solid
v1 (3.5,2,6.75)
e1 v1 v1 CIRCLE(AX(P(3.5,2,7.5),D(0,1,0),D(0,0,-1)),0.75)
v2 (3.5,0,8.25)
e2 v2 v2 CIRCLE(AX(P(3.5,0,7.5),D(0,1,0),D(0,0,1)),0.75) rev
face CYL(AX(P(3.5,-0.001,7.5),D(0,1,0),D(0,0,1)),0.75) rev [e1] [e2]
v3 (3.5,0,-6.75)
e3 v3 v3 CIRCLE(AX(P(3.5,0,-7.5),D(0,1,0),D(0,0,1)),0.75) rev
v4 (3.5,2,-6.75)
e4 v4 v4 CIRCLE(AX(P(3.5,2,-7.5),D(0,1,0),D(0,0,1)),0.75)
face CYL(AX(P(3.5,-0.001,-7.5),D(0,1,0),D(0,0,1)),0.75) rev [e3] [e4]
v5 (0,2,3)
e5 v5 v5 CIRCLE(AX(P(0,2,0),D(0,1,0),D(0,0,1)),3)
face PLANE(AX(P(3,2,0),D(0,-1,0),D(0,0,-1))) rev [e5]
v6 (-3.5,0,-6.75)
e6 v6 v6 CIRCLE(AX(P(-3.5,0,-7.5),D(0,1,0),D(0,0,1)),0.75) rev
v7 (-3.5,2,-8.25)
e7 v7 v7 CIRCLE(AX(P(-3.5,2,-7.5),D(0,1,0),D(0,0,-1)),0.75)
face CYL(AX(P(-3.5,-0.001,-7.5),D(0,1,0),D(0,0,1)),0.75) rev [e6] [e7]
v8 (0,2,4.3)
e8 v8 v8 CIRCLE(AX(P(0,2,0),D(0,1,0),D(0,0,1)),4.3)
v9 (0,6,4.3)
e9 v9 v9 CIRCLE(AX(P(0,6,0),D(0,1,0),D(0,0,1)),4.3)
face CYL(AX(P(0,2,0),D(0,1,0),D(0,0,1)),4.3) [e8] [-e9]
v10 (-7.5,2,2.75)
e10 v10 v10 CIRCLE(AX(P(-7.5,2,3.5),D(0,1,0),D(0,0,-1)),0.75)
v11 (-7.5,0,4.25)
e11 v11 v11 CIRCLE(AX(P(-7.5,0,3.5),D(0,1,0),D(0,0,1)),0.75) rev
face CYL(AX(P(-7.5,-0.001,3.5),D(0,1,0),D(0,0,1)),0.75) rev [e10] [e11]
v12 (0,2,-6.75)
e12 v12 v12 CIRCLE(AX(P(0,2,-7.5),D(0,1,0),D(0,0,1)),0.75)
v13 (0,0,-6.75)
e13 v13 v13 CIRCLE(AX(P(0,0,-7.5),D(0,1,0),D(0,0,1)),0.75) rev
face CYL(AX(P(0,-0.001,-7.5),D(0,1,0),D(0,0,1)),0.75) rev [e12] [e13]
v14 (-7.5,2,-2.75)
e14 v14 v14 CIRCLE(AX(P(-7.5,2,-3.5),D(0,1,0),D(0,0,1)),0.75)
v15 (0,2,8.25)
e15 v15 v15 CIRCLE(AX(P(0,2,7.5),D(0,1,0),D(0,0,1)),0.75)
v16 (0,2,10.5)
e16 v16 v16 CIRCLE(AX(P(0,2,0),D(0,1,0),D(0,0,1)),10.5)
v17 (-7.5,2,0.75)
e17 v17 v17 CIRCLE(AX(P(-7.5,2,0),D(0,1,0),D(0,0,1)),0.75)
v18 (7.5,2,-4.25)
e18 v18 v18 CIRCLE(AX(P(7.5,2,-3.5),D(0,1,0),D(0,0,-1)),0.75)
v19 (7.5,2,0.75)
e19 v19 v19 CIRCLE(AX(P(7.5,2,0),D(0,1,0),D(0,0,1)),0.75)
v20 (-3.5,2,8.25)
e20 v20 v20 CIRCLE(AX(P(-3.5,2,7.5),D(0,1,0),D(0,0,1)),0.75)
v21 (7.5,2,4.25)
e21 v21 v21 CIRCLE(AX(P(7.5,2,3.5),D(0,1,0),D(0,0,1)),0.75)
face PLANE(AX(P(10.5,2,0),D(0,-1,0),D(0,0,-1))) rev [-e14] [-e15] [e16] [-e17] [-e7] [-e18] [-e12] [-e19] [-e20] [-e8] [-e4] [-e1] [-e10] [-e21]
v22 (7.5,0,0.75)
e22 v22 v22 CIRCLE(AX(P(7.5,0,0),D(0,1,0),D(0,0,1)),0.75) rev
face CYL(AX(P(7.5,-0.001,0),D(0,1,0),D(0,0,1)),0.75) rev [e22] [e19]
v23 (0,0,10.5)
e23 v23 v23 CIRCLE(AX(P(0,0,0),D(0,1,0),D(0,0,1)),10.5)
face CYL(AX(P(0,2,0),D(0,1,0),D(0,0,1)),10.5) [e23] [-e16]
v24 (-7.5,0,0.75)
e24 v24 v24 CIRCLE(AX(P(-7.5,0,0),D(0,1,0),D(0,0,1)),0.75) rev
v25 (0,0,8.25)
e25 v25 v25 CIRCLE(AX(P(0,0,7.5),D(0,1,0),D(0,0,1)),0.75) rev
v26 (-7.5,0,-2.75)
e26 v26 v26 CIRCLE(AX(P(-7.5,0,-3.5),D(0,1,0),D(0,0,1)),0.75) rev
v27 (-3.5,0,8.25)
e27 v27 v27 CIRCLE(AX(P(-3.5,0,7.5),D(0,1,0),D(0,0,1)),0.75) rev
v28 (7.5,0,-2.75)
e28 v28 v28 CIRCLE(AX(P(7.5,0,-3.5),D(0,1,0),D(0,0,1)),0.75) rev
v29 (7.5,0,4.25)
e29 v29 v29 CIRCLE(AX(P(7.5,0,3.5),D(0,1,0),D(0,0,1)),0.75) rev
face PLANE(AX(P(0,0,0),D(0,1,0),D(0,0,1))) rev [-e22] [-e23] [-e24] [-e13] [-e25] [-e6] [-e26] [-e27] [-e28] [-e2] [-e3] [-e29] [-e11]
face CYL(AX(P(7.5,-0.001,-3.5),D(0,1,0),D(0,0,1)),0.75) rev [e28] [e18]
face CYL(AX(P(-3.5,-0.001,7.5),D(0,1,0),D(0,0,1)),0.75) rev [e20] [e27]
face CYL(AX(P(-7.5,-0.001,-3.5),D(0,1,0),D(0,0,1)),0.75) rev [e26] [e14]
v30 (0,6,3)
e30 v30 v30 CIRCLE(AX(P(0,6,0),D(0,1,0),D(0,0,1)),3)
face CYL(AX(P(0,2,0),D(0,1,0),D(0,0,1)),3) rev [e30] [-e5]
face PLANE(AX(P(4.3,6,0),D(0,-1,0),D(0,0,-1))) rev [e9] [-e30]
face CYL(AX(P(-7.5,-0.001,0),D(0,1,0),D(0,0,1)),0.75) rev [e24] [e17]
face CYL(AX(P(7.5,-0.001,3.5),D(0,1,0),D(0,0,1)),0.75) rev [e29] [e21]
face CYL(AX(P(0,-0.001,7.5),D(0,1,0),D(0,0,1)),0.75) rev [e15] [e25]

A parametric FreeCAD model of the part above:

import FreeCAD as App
import Part
import Sketcher

V = App.Vector

doc = App.newDocument("Part")
body = doc.addObject("PartDesign::Body", "Body")

# Sketch on XY plane
sketch1 = body.newObject("Sketcher::SketchObject", "Sketch")
sketch1.AttachmentSupport = (doc.getObject("XY_Plane"), [""])
sketch1.MapMode = "FlatFace"
sketch1.addGeometry(Part.LineSegment(V(0, 0, 0), V(10.5, 0, 0)), False)
sketch1.addGeometry(Part.LineSegment(V(10.5, 0, 0), V(10.5, 2, 0)), False)
sketch1.addGeometry(Part.LineSegment(V(10.5, 2, 0), V(4.3, 2, 0)), False)
sketch1.addGeometry(Part.LineSegment(V(4.3, 2, 0), V(4.3, 6, 0)), False)
sketch1.addGeometry(Part.LineSegment(V(4.3, 6, 0), V(3, 6, 0)), False)
sketch1.addGeometry(Part.LineSegment(V(3, 6, 0), V(3, 2, 0)), False)
sketch1.addGeometry(Part.LineSegment(V(3, 2, 0), V(0, 2, 0)), False)
sketch1.addGeometry(Part.LineSegment(V(0, 2, 0), V(0, 0, 0)), False)
sketch1.addConstraint(Sketcher.Constraint("Coincident", 0, 2, 1, 1))
sketch1.addConstraint(Sketcher.Constraint("Coincident", 1, 2, 2, 1))
sketch1.addConstraint(Sketcher.Constraint("Coincident", 2, 2, 3, 1))
sketch1.addConstraint(Sketcher.Constraint("Coincident", 3, 2, 4, 1))
sketch1.addConstraint(Sketcher.Constraint("Coincident", 4, 2, 5, 1))
sketch1.addConstraint(Sketcher.Constraint("Coincident", 5, 2, 6, 1))
sketch1.addConstraint(Sketcher.Constraint("Coincident", 6, 2, 7, 1))
sketch1.addConstraint(Sketcher.Constraint("Coincident", 7, 2, 0, 1))
sketch1.addConstraint(Sketcher.Constraint("Horizontal", 0))
sketch1.addConstraint(Sketcher.Constraint("Vertical", 1))
sketch1.addConstraint(Sketcher.Constraint("Horizontal", 2))
sketch1.addConstraint(Sketcher.Constraint("Vertical", 3))
sketch1.addConstraint(Sketcher.Constraint("Horizontal", 4))
sketch1.addConstraint(Sketcher.Constraint("Vertical", 5))
sketch1.addConstraint(Sketcher.Constraint("Horizontal", 6))
sketch1.addConstraint(Sketcher.Constraint("Vertical", 7))
sketch1.addConstraint(Sketcher.Constraint("Coincident", 7, 2, -1, 1))
sketch1.addConstraint(Sketcher.Constraint("Horizontal", 2, 2, 5, 2))
sketch1.addConstraint(Sketcher.Constraint("DistanceX", 6, 2, 6, 1, 3.0))
sketch1.addConstraint(Sketcher.Constraint("DistanceY", 1, 1, 1, 2, 2.0))
sketch1.addConstraint(Sketcher.Constraint("DistanceY", 3, 1, 3, 2, 4.0))
sketch1.addConstraint(Sketcher.Constraint("DistanceX", 0, 1, 0, 2, 10.5))
sketch1.addConstraint(Sketcher.Constraint("DistanceX", 2, 2, 2, 1, 6.2))
revolution = body.newObject("PartDesign::Revolution", "Revolution")
revolution.Profile = sketch1
revolution.ReferenceAxis = (sketch1, ["V_Axis"])
revolution.Angle = 360

# Sketch on XZ plane
sketch2 = body.newObject("Sketcher::SketchObject", "Sketch001")
sketch2.AttachmentSupport = (doc.getObject("XZ_Plane"), [""])
sketch2.MapMode = "FlatFace"
sketch2.AttachmentOffset = App.Placement(V(0, 0, -2), App.Rotation())
sketch2.addGeometry(Part.Circle(V(3.5, -7.5, 0), V(0, 0, 1), 0.8), False)
sketch2.addConstraint(Sketcher.Constraint("Diameter", 0, 1.5))
sketch2.addConstraint(Sketcher.Constraint("DistanceX", -1, 1, 0, 3, 3.5))
sketch2.addConstraint(Sketcher.Constraint("DistanceY", 0, 3, -1, 1, 7.5))
pocket1 = body.newObject("PartDesign::Pocket", "Pocket")
pocket1.Profile = sketch2
pocket1.Type = "UpToFirst"
pocket1.Reversed = True

# Sketch on XZ plane
sketch3 = body.newObject("Sketcher::SketchObject", "Sketch002")
sketch3.AttachmentSupport = (doc.getObject("XZ_Plane"), [""])
sketch3.MapMode = "FlatFace"
sketch3.AttachmentOffset = App.Placement(V(0, 0, -2), App.Rotation())
sketch3.addGeometry(Part.Circle(V(0, -7.5, 0), V(0, 0, 1), 0.8), False)
sketch3.addConstraint(Sketcher.Constraint("PointOnObject", 0, 3, -2))
sketch3.addConstraint(Sketcher.Constraint("Diameter", 0, 1.5))
sketch3.addConstraint(Sketcher.Constraint("DistanceY", 0, 3, -1, 1, 7.5))
pocket2 = body.newObject("PartDesign::Pocket", "Pocket001")
pocket2.Profile = sketch3
pocket2.Type = "UpToFirst"
pocket2.Reversed = True

# Sketch on XZ plane
sketch4 = body.newObject("Sketcher::SketchObject", "Sketch003")
sketch4.AttachmentSupport = (doc.getObject("XZ_Plane"), [""])
sketch4.MapMode = "FlatFace"
sketch4.AttachmentOffset = App.Placement(V(0, 0, -2), App.Rotation())
sketch4.addGeometry(Part.Circle(V(-3.5, -7.5, 0), V(0, 0, 1), 0.8), False)
sketch4.addConstraint(Sketcher.Constraint("Diameter", 0, 1.5))
sketch4.addConstraint(Sketcher.Constraint("DistanceX", 0, 3, -1, 1, 3.5))
sketch4.addConstraint(Sketcher.Constraint("DistanceY", 0, 3, -1, 1, 7.5))
pocket3 = body.newObject("PartDesign::Pocket", "Pocket002")
pocket3.Profile = sketch4
pocket3.Type = "UpToFirst"
pocket3.Reversed = True

# Sketch on XZ plane
sketch5 = body.newObject("Sketcher::SketchObject", "Sketch004")
sketch5.AttachmentSupport = (doc.getObject("XZ_Plane"), [""])
sketch5.MapMode = "FlatFace"
sketch5.AttachmentOffset = App.Placement(V(0, 0, -2), App.Rotation())
sketch5.addGeometry(Part.Circle(V(7.5, -3.5, 0), V(0, 0, 1), 0.8), False)
sketch5.addConstraint(Sketcher.Constraint("Diameter", 0, 1.5))
sketch5.addConstraint(Sketcher.Constraint("DistanceX", -1, 1, 0, 3, 7.5))
sketch5.addConstraint(Sketcher.Constraint("DistanceY", 0, 3, -1, 1, 3.5))
pocket4 = body.newObject("PartDesign::Pocket", "Pocket003")
pocket4.Profile = sketch5
pocket4.Type = "UpToFirst"
pocket4.Reversed = True

# Sketch on XZ plane
sketch6 = body.newObject("Sketcher::SketchObject", "Sketch005")
sketch6.AttachmentSupport = (doc.getObject("XZ_Plane"), [""])
sketch6.MapMode = "FlatFace"
sketch6.AttachmentOffset = App.Placement(V(0, 0, -2), App.Rotation())
sketch6.addGeometry(Part.Circle(V(7.5, 3.5, 0), V(0, 0, 1), 0.8), False)
sketch6.addConstraint(Sketcher.Constraint("Diameter", 0, 1.5))
sketch6.addConstraint(Sketcher.Constraint("DistanceX", -1, 1, 0, 3, 7.5))
sketch6.addConstraint(Sketcher.Constraint("DistanceY", -1, 1, 0, 3, 3.5))
pocket5 = body.newObject("PartDesign::Pocket", "Pocket004")
pocket5.Profile = sketch6
pocket5.Type = "UpToFirst"
pocket5.Reversed = True

# Sketch on XZ plane
sketch7 = body.newObject("Sketcher::SketchObject", "Sketch006")
sketch7.AttachmentSupport = (doc.getObject("XZ_Plane"), [""])
sketch7.MapMode = "FlatFace"
sketch7.AttachmentOffset = App.Placement(V(0, 0, -2), App.Rotation())
sketch7.addGeometry(Part.Circle(V(7.5, 0, 0), V(0, 0, 1), 0.8), False)
sketch7.addConstraint(Sketcher.Constraint("PointOnObject", 0, 3, -1))
sketch7.addConstraint(Sketcher.Constraint("Diameter", 0, 1.5))
sketch7.addConstraint(Sketcher.Constraint("DistanceX", -1, 1, 0, 3, 7.5))
pocket6 = body.newObject("PartDesign::Pocket", "Pocket005")
pocket6.Profile = sketch7
pocket6.Type = "UpToFirst"
pocket6.Reversed = True

# Sketch on XZ plane
sketch8 = body.newObject("Sketcher::SketchObject", "Sketch007")
sketch8.AttachmentSupport = (doc.getObject("XZ_Plane"), [""])
sketch8.MapMode = "FlatFace"
sketch8.AttachmentOffset = App.Placement(V(0, 0, -2), App.Rotation())
sketch8.addGeometry(Part.Circle(V(3.5, 7.5, 0), V(0, 0, 1), 0.8), False)
sketch8.addConstraint(Sketcher.Constraint("Diameter", 0, 1.5))
sketch8.addConstraint(Sketcher.Constraint("DistanceX", -1, 1, 0, 3, 3.5))
sketch8.addConstraint(Sketcher.Constraint("DistanceY", -1, 1, 0, 3, 7.5))
pocket7 = body.newObject("PartDesign::Pocket", "Pocket006")
pocket7.Profile = sketch8
pocket7.Type = "UpToFirst"
pocket7.Reversed = True

# Sketch on XZ plane
sketch9 = body.newObject("Sketcher::SketchObject", "Sketch008")
sketch9.AttachmentSupport = (doc.getObject("XZ_Plane"), [""])
sketch9.MapMode = "FlatFace"
sketch9.AttachmentOffset = App.Placement(V(0, 0, -2), App.Rotation())
sketch9.addGeometry(Part.Circle(V(-3.5, 7.5, 0), V(0, 0, 1), 0.8), False)
sketch9.addConstraint(Sketcher.Constraint("Diameter", 0, 1.5))
sketch9.addConstraint(Sketcher.Constraint("DistanceX", 0, 3, -1, 1, 3.5))
sketch9.addConstraint(Sketcher.Constraint("DistanceY", -1, 1, 0, 3, 7.5))
pocket8 = body.newObject("PartDesign::Pocket", "Pocket007")
pocket8.Profile = sketch9
pocket8.Type = "UpToFirst"
pocket8.Reversed = True

# Sketch on XZ plane
sketch10 = body.newObject("Sketcher::SketchObject", "Sketch009")
sketch10.AttachmentSupport = (doc.getObject("XZ_Plane"), [""])
sketch10.MapMode = "FlatFace"
sketch10.AttachmentOffset = App.Placement(V(0, 0, -2), App.Rotation())
sketch10.addGeometry(Part.Circle(V(0, 7.5, 0), V(0, 0, 1), 0.8), False)
sketch10.addConstraint(Sketcher.Constraint("PointOnObject", 0, 3, -2))
sketch10.addConstraint(Sketcher.Constraint("Diameter", 0, 1.5))
sketch10.addConstraint(Sketcher.Constraint("DistanceY", -1, 1, 0, 3, 7.5))
pocket9 = body.newObject("PartDesign::Pocket", "Pocket008")
pocket9.Profile = sketch10
pocket9.Type = "UpToFirst"
pocket9.Reversed = True

# Sketch on XZ plane
sketch11 = body.newObject("Sketcher::SketchObject", "Sketch010")
sketch11.AttachmentSupport = (doc.getObject("XZ_Plane"), [""])
sketch11.MapMode = "FlatFace"
sketch11.AttachmentOffset = App.Placement(V(0, 0, -2), App.Rotation())
sketch11.addGeometry(Part.Circle(V(-7.5, 3.5, 0), V(0, 0, 1), 0.8), False)
sketch11.addConstraint(Sketcher.Constraint("Diameter", 0, 1.5))
sketch11.addConstraint(Sketcher.Constraint("DistanceX", 0, 3, -1, 1, 7.5))
sketch11.addConstraint(Sketcher.Constraint("DistanceY", -1, 1, 0, 3, 3.5))
pocket10 = body.newObject("PartDesign::Pocket", "Pocket009")
pocket10.Profile = sketch11
pocket10.Type = "UpToFirst"
pocket10.Reversed = True

# Sketch on XZ plane
sketch12 = body.newObject("Sketcher::SketchObject", "Sketch011")
sketch12.AttachmentSupport = (doc.getObject("XZ_Plane"), [""])
sketch12.MapMode = "FlatFace"
sketch12.AttachmentOffset = App.Placement(V(0, 0, -2), App.Rotation())
sketch12.addGeometry(Part.Circle(V(-7.5, -3.5, 0), V(0, 0, 1), 0.8), False)
sketch12.addConstraint(Sketcher.Constraint("Diameter", 0, 1.5))
sketch12.addConstraint(Sketcher.Constraint("DistanceX", 0, 3, -1, 1, 7.5))
sketch12.addConstraint(Sketcher.Constraint("DistanceY", 0, 3, -1, 1, 3.5))
pocket11 = body.newObject("PartDesign::Pocket", "Pocket010")
pocket11.Profile = sketch12
pocket11.Type = "UpToFirst"
pocket11.Reversed = True

# Sketch on XZ plane
sketch13 = body.newObject("Sketcher::SketchObject", "Sketch012")
sketch13.AttachmentSupport = (doc.getObject("XZ_Plane"), [""])
sketch13.MapMode = "FlatFace"
sketch13.AttachmentOffset = App.Placement(V(0, 0, -2), App.Rotation())
sketch13.addGeometry(Part.Circle(V(-7.5, 0, 0), V(0, 0, 1), 0.8), False)
sketch13.addConstraint(Sketcher.Constraint("PointOnObject", 0, 3, -1))
sketch13.addConstraint(Sketcher.Constraint("Diameter", 0, 1.5))
sketch13.addConstraint(Sketcher.Constraint("DistanceX", 0, 3, -1, 1, 7.5))
pocket12 = body.newObject("PartDesign::Pocket", "Pocket011")
pocket12.Profile = sketch13
pocket12.Type = "UpToFirst"
pocket12.Reversed = True

doc.recompute()
